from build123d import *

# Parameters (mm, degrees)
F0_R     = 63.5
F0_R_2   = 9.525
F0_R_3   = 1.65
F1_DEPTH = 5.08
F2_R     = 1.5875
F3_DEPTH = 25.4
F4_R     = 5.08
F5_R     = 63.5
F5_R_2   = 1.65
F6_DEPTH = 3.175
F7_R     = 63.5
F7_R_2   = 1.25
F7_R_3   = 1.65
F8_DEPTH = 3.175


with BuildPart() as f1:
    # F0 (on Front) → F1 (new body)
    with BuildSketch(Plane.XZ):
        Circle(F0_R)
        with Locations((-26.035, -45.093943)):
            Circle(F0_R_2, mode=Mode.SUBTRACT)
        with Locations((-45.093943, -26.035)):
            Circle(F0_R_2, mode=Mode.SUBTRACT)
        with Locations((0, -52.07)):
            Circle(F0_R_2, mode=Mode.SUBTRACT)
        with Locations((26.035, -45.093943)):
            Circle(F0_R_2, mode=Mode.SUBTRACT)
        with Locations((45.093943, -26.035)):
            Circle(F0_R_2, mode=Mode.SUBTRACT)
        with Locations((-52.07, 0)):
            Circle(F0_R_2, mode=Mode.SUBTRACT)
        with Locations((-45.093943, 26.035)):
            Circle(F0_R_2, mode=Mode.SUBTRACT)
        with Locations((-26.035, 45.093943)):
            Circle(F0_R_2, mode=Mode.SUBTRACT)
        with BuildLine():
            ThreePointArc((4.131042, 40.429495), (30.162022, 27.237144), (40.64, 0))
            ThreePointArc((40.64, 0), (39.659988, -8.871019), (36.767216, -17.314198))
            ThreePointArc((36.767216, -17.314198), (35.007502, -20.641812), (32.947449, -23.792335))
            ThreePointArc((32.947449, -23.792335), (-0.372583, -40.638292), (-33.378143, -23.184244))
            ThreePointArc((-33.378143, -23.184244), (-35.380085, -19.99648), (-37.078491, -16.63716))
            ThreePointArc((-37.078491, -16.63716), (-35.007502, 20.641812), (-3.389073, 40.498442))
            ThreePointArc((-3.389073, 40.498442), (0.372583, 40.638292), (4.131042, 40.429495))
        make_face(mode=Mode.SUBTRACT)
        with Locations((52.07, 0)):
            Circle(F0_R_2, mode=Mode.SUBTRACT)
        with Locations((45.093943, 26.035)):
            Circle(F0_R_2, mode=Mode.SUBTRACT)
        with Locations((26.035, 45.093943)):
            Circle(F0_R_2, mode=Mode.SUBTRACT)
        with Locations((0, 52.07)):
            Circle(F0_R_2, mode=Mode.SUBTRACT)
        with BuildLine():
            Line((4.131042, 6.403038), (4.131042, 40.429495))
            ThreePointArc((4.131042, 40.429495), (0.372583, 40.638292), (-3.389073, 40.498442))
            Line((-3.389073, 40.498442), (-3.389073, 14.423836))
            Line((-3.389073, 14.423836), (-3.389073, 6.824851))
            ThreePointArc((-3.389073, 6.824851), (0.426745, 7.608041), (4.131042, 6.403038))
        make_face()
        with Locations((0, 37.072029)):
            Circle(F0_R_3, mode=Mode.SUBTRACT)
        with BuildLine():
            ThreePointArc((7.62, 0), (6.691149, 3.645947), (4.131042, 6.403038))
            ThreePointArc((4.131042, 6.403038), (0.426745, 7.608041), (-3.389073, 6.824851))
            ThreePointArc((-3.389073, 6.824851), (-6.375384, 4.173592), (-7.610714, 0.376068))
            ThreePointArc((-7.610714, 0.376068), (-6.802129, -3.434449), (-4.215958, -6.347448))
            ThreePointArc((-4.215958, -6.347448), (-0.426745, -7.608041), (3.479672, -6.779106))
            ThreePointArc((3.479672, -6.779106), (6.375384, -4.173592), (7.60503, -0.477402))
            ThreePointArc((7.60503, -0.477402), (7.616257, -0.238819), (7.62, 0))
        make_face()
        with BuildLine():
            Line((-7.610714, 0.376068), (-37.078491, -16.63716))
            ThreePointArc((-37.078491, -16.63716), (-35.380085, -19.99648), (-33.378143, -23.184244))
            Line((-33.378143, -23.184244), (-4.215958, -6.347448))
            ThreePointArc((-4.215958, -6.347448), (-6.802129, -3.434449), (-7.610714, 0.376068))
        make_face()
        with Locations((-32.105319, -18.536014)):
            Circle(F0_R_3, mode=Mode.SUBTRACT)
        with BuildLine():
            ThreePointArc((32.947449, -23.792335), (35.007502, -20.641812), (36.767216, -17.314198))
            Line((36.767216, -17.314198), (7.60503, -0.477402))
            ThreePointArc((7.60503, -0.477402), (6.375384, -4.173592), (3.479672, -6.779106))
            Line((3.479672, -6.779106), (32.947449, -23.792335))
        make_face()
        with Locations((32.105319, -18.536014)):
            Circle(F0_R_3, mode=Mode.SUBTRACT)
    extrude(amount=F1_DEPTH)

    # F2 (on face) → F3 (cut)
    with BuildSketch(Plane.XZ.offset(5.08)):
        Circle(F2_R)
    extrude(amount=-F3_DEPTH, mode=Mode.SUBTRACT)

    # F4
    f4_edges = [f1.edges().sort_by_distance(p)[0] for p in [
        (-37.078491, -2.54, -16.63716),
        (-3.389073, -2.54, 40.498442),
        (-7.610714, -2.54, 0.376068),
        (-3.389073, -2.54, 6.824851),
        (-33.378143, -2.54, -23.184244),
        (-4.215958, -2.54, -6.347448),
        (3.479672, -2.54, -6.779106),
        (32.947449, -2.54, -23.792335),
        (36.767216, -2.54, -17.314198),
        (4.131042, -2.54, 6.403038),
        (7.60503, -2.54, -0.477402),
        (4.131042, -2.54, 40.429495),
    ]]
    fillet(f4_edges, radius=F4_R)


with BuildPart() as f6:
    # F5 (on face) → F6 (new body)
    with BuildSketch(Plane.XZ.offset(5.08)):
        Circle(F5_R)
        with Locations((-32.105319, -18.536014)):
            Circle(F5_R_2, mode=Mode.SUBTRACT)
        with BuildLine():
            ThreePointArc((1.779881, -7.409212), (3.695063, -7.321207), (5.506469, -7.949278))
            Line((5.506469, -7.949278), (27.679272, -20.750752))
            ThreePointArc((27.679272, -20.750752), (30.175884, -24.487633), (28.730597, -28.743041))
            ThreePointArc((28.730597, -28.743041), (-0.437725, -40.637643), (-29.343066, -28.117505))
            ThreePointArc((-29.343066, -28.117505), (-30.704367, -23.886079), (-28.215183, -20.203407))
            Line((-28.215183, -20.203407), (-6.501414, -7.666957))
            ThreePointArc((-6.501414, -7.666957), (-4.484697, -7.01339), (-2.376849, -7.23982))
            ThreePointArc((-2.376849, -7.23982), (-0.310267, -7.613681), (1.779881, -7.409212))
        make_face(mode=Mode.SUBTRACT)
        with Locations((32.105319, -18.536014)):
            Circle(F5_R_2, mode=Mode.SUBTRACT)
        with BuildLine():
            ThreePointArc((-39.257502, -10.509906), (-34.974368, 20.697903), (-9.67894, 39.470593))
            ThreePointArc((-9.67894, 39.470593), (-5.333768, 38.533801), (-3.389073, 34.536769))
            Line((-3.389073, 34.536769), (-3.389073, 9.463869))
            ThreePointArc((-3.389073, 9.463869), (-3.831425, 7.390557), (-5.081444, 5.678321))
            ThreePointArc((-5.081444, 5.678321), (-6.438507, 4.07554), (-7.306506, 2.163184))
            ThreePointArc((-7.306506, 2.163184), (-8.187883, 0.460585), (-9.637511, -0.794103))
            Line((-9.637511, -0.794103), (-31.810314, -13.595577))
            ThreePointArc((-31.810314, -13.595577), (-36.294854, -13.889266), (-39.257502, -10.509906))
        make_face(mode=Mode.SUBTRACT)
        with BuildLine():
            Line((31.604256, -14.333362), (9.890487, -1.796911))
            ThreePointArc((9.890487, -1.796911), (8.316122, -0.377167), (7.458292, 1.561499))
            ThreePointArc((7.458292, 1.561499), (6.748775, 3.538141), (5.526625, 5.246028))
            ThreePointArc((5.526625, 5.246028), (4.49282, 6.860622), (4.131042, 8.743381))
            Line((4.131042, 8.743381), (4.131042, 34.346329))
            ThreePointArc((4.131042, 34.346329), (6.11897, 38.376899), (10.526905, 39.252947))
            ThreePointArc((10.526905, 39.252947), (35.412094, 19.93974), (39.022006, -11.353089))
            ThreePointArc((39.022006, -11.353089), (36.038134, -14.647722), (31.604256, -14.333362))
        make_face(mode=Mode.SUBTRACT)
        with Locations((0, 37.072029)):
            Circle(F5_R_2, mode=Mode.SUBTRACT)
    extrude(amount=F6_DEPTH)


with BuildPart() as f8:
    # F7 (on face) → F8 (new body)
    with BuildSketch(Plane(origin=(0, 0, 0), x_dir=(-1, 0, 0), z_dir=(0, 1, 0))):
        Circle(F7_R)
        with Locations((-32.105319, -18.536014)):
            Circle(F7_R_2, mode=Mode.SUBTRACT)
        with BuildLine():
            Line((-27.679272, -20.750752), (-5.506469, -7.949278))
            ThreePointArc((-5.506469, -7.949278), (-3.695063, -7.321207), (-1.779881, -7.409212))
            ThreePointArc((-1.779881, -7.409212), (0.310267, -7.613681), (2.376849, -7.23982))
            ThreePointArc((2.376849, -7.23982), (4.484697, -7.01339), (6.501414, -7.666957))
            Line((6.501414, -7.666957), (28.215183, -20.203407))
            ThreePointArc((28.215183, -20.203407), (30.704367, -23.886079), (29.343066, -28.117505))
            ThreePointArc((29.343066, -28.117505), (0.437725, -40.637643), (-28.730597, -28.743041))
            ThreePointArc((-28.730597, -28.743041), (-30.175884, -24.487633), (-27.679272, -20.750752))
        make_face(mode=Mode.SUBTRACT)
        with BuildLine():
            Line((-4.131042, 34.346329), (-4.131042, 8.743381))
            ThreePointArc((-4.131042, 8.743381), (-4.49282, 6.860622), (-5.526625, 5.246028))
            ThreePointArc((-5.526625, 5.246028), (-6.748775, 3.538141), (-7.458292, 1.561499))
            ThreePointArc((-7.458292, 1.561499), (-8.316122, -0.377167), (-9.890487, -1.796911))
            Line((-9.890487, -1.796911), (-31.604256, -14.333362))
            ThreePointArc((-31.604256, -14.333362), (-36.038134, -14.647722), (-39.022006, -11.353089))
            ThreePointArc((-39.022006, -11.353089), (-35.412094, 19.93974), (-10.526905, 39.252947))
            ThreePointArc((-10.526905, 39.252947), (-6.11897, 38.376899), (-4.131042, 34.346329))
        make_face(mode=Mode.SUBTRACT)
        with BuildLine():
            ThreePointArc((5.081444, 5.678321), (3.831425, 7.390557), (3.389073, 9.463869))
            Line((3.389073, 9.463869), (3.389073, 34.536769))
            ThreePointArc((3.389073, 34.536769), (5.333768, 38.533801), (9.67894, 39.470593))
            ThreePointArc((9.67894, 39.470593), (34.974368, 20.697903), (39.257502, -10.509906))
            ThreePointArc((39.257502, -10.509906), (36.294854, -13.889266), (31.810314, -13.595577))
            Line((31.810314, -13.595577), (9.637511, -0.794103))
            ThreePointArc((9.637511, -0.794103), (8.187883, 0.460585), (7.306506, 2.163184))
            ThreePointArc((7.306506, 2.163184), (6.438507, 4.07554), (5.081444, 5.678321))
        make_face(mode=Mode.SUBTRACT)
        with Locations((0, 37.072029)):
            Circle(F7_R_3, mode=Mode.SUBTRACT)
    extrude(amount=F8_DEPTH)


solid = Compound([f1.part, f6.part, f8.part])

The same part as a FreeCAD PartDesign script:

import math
import FreeCAD as App
import Part
import Sketcher

V = App.Vector
Q = App.Units.Quantity


def edges_at(feature, points):
    """Names of the edges that pass closest to the given points."""
    edges = feature.Shape.Edges
    near = lambda p: min(range(len(edges)), key=lambda i: edges[i].distToShape(Part.Vertex(*p))[0])
    return sorted({f"Edge{near(p) + 1}" for p in points})

doc = App.newDocument("Part")
body = doc.addObject("PartDesign::Body", "Body")

# Sketch on XZ plane
sketch1 = body.newObject("Sketcher::SketchObject", "Sketch")
sketch1.AttachmentSupport = (doc.getObject("XZ_Plane"), [""])
sketch1.MapMode = "FlatFace"
sketch1.addGeometry([
    Part.Circle(V(0, 0, 0), V(0, 0, 1), 63.5),  # 0
    Part.Circle(V(-26.04, -45.09, 0), V(0, 0, 1), 9.53),  # 1
    Part.Circle(V(-45.09, -26.04, 0), V(0, 0, 1), 9.53),  # 2
    Part.Circle(V(-32.11, -18.54, 0), V(0, 0, 1), 1.65),  # 3
    Part.ArcOfCircle(Part.Circle(V(0, 0, 0), V(0, 0, 1), 7.62), math.radians(-124), math.radians(-63)),  # 4
    Part.LineSegment(V(3.48, -6.78, 0), V(32.95, -23.79, 0)),  # 5
    Part.ArcOfCircle(Part.Circle(V(0, 0, 0), V(0, 0, 1), 40.64), math.radians(-145), math.radians(-36)),  # 6
    Part.LineSegment(V(-33.38, -23.18, 0), V(-4.22, -6.35, 0)),  # 7
    Part.Circle(V(0, -52.07, 0), V(0, 0, 1), 9.53),  # 8
    Part.Circle(V(26.04, -45.09, 0), V(0, 0, 1), 9.53),  # 9
    Part.Circle(V(45.09, -26.04, 0), V(0, 0, 1), 9.53),  # 10
    Part.Circle(V(32.11, -18.54, 0), V(0, 0, 1), 1.65),  # 11
    Part.Circle(V(-52.07, 0, 0), V(0, 0, 1), 9.53),  # 12
    Part.Circle(V(-45.09, 26.04, 0), V(0, 0, 1), 9.53),  # 13
    Part.LineSegment(V(-7.61, 0.38, 0), V(-37.08, -16.64, 0)),  # 14
    Part.ArcOfCircle(Part.Circle(V(0, 0, 0), V(0, 0, 1), 40.64), math.radians(95), math.radians(204)),  # 15
    Part.LineSegment(V(-3.39, 40.5, 0), V(-3.39, 6.82, 0)),  # 16
    Part.ArcOfCircle(Part.Circle(V(0, 0, 0), V(0, 0, 1), 7.62), math.radians(116), math.radians(177)),  # 17
    Part.Circle(V(-26.04, 45.09, 0), V(0, 0, 1), 9.53),  # 18
    Part.ArcOfCircle(Part.Circle(V(0, 0, 0), V(0, 0, 1), 7.62), math.radians(0), math.radians(57)),  # 19
    Part.LineSegment(V(4.13, 6.4, 0), V(4.13, 40.43, 0)),  # 20
    Part.ArcOfCircle(Part.Circle(V(0, 0, 0), V(0, 0, 1), 40.64), math.radians(0), math.radians(84)),  # 21
    Part.ArcOfCircle(Part.Circle(V(0, 0, 0), V(0, 0, 1), 40.64), math.radians(-25), math.radians(0)),  # 22
    Part.LineSegment(V(36.77, -17.31, 0), V(7.61, -0.48, 0)),  # 23
    Part.ArcOfCircle(Part.Circle(V(0, 0, 0), V(0, 0, 1), 7.62), math.radians(-3.59), math.radians(0)),  # 24
    Part.Circle(V(52.07, 0, 0), V(0, 0, 1), 9.53),  # 25
    Part.Circle(V(45.09, 26.04, 0), V(0, 0, 1), 9.53),  # 26
    Part.Circle(V(0, 37.07, 0), V(0, 0, 1), 1.65),  # 27
    Part.Circle(V(26.04, 45.09, 0), V(0, 0, 1), 9.53),  # 28
    Part.Circle(V(0, 52.07, 0), V(0, 0, 1), 9.53),  # 29
], False)
sketch1.addConstraint([
    Sketcher.Constraint("Coincident", 4, 2, 5, 1),
    Sketcher.Constraint("Coincident", 5, 2, 6, 2),
    Sketcher.Constraint("Coincident", 6, 1, 7, 1),
    Sketcher.Constraint("Coincident", 7, 2, 4, 1),
    Sketcher.Constraint("Coincident", 14, 2, 15, 2),
    Sketcher.Constraint("Coincident", 15, 1, 16, 1),
    Sketcher.Constraint("Coincident", 16, 2, 17, 1),
    Sketcher.Constraint("Coincident", 17, 2, 14, 1),
    Sketcher.Constraint("Coincident", 19, 2, 20, 1),
    Sketcher.Constraint("Coincident", 20, 2, 21, 2),
    Sketcher.Constraint("Tangent", 21, 1, 22, 2),
    Sketcher.Constraint("Coincident", 22, 1, 23, 1),
    Sketcher.Constraint("Coincident", 23, 2, 24, 1),
    Sketcher.Constraint("Coincident", 24, 2, 19, 1),
    Sketcher.Constraint("Vertical", 16),
    Sketcher.Constraint("Vertical", 20),
    Sketcher.Constraint("Coincident", 0, 3, -1, 1),
    Sketcher.Constraint("Coincident", 4, 3, -1, 1),
    Sketcher.Constraint("Coincident", 6, 3, -1, 1),
    Sketcher.Constraint("Coincident", 15, 3, -1, 1),
    Sketcher.Constraint("Coincident", 17, 3, -1, 1),
    Sketcher.Constraint("Coincident", 19, 3, -1, 1),
    Sketcher.Constraint("Coincident", 21, 3, -1, 1),
    Sketcher.Constraint("Equal", 1, 2),
    Sketcher.Constraint("Equal", 2, 8),
    Sketcher.Constraint("Equal", 8, 9),
    Sketcher.Constraint("Equal", 9, 10),
    Sketcher.Constraint("Equal", 3, 11),
    Sketcher.Constraint("Equal", 10, 12),
    Sketcher.Constraint("Equal", 12, 13),
    Sketcher.Constraint("Equal", 6, 15),
    Sketcher.Constraint("Equal", 13, 18),
    Sketcher.Constraint("Equal", 4, 19),
    Sketcher.Constraint("Equal", 15, 21),
    Sketcher.Constraint("Equal", 18, 25),
    Sketcher.Constraint("Equal", 25, 26),
    Sketcher.Constraint("Equal", 11, 27),
    Sketcher.Constraint("Equal", 26, 28),
    Sketcher.Constraint("Equal", 28, 29),
    Sketcher.Constraint("Symmetric", 10, 3, 13, 3, -1, 1),
    Sketcher.Constraint("Symmetric", 9, 3, 18, 3, -1, 1),
    Sketcher.Constraint("Symmetric", 12, 3, 25, 3, -1, 1),
    Sketcher.Constraint("Symmetric", 2, 3, 26, 3, -1, 1),
    Sketcher.Constraint("Symmetric", 1, 3, 28, 3, -1, 1),
    Sketcher.Constraint("Symmetric", 8, 3, 29, 3, -1, 1),
    Sketcher.Constraint("Symmetric", 1, 3, 9, 3, -2),
    Sketcher.Constraint("Symmetric", 2, 3, 10, 3, -2),
    Sketcher.Constraint("Symmetric", 3, 3, 11, 3, -2),
    Sketcher.Constraint("PointOnObject", 8, 3, -2),
    Sketcher.Constraint("PointOnObject", 12, 3, -1),
    Sketcher.Constraint("PointOnObject", 27, 3, -2),
    Sketcher.Constraint("PointOnObject", 21, 1, -1),
    Sketcher.Constraint("PointOnObject", 24, 2, -1),
    Sketcher.Constraint("Parallel", 7, 14),
    Sketcher.Constraint("Parallel", 5, 23),
    Sketcher.Constraint("Equal", 5, 14),
    Sketcher.Constraint("Equal", 7, 23),
    Sketcher.Constraint("Diameter", 0, Q("5 in")),
    Sketcher.Constraint("Radius", 4, Q("0.3 in")),
    Sketcher.Constraint("Radius", 6, Q("1.6 in")),
    Sketcher.Constraint("Radius", 17, Q("0.3000002 in")),
    Sketcher.Constraint("Diameter", 1, Q("0.75 in")),
    Sketcher.Constraint("Angle", 5, Q("-30 deg")),
    Sketcher.Constraint("Angle", 7, Q("30.000001 deg")),
    Sketcher.Constraint("Diameter", 3, 3.3),
    Sketcher.Constraint("DistanceY", 8, 3, -1, 1, Q("2.05 in")),
    Sketcher.Constraint("DistanceX", 12, 3, -1, 1, Q("2.05 in")),
    Sketcher.Constraint("DistanceX", 1, 3, 9, 3, Q("2.05 in")),
    Sketcher.Constraint("DistanceY", 2, 3, 13, 3, Q("2.05 in")),
    Sketcher.Constraint("DistanceX", 6, 1, -1, 1, Q("1.3141001 in")),
    Sketcher.Constraint("Radius", 22, 40.639993),
    Sketcher.Constraint("Radius", 24, 7.618903),
    Sketcher.Constraint("DistanceY", 16, 2, 16, 1, 33.673591),
    Sketcher.Constraint("DistanceX", 2, 3, 6, 1, 11.7158),
    Sketcher.Constraint("DistanceY", 1, 3, 6, 1, 21.909699),
    Sketcher.Constraint("DistanceY", 23, 2, 22, 3, 0.4774),
    Sketcher.Constraint("DistanceY", 20, 1, 20, 2, 34.026457),
    Sketcher.Constraint("DistanceX", 3, 3, -1, 1, 32.105319),
    Sketcher.Constraint("DistanceY", -1, 1, 27, 3, 37.072029),
    Sketcher.Constraint("DistanceX", -1, 1, 4, 2, 3.479672),
    Sketcher.Constraint("DistanceY", 1, 3, 3, 3, 26.557929),
])
pad1 = body.newObject("PartDesign::Pad", "Pad")
pad1.Profile = sketch1
pad1.Length = Q("0.2 in")

# Sketch on XZ plane
sketch2 = body.newObject("Sketcher::SketchObject", "Sketch001")
sketch2.AttachmentSupport = (doc.getObject("XZ_Plane"), [""])
sketch2.MapMode = "FlatFace"
sketch2.AttachmentOffset = App.Placement(V(0, 0, 0.2 * 25.4), App.Rotation())
sketch2.addGeometry(Part.Circle(V(0, 0, 0), V(0, 0, 1), 1.6), False)
sketch2.addConstraint([
    Sketcher.Constraint("Coincident", 0, 3, -1, 1),
    Sketcher.Constraint("Diameter", 0, Q("0.125 in")),
])
pocket1 = body.newObject("PartDesign::Pocket", "Pocket")
pocket1.Profile = sketch2
pocket1.Length = Q("1 in")
doc.recompute()

fillet = body.newObject("PartDesign::Fillet", "Fillet")
fillet.Base = (pocket1, edges_at(pocket1, [
    (-37.078, -2.54, -16.637),
    (-3.389, -2.54, 40.498),
    (-7.611, -2.54, 0.376),
    (-3.389, -2.54, 6.825),
    (-33.378, -2.54, -23.184),
    (-4.216, -2.54, -6.347),
    (3.48, -2.54, -6.779),
    (32.947, -2.54, -23.792),
    (36.767, -2.54, -17.314),
    (4.131, -2.54, 6.403),
    (7.605, -2.54, -0.477),
    (4.131, -2.54, 40.429),
]))
fillet.Radius = Q("0.2 in")
body2 = doc.addObject("PartDesign::Body", "Body001")

# Sketch on XZ plane
sketch3 = body2.newObject("Sketcher::SketchObject", "Sketch002")
sketch3.AttachmentSupport = (doc.getObject("XZ_Plane001"), [""])
sketch3.MapMode = "FlatFace"
sketch3.AttachmentOffset = App.Placement(V(0, 0, 0.2 * 25.4), App.Rotation())
sketch3.addGeometry([
    Part.Circle(V(0, 0, 0), V(0, 0, 1), 63.5),  # 0
    Part.ArcOfCircle(Part.Circle(V(0, 0, 0), V(0, 0, 1), 7.6), math.radians(-108), math.radians(-76)),  # 1
    Part.ArcOfCircle(Part.Circle(V(3, -12.3, 0), V(0, 0, 1), 5.1), math.radians(60), math.radians(104)),  # 2
    Part.LineSegment(V(5.5, -7.9, 0), V(27.7, -20.8, 0)),  # 3
    Part.ArcOfCircle(Part.Circle(V(25.1, -25.2, 0), V(0, 0, 1), 5.1), math.radians(-45), math.radians(60)),  # 4
    Part.ArcOfCircle(Part.Circle(V(0, 0, 0), V(0, 0, 1), 40.6), math.radians(-136), math.radians(-45)),  # 5
    Part.ArcOfCircle(Part.Circle(V(-25.7, -24.6, 0), V(0, 0, 1), 5.1), math.radians(120), math.radians(224)),  # 6
    Part.LineSegment(V(-28.2, -20.2, 0), V(-6.5, -7.7, 0)),  # 7
    Part.ArcOfCircle(Part.Circle(V(-4, -12.1, 0), V(0, 0, 1), 5.1), math.radians(72), math.radians(120)),  # 8
    Part.Circle(V(-32.1, -18.5, 0), V(0, 0, 1), 1.6),  # 9
    Part.Circle(V(32.1, -18.5, 0), V(0, 0, 1), 1.6),  # 10
    Part.ArcOfCircle(Part.Circle(V(-34.4, -9.2, 0), V(0, 0, 1), 5.1), math.radians(-165), math.radians(-60)),  # 11
    Part.ArcOfCircle(Part.Circle(V(0, 0, 0), V(0, 0, 1), 40.6), math.radians(104), math.radians(195)),  # 12
    Part.ArcOfCircle(Part.Circle(V(-8.5, 34.5, 0), V(0, 0, 1), 5.1), math.radians(0), math.radians(104)),  # 13
    Part.LineSegment(V(-3.4, 34.5, 0), V(-3.4, 9.5, 0)),  # 14
    Part.ArcOfCircle(Part.Circle(V(-8.5, 9.5, 0), V(0, 0, 1), 5.1), math.radians(-48), math.radians(0)),  # 15
    Part.ArcOfCircle(Part.Circle(V(0, 0, 0), V(0, 0, 1), 7.6), math.radians(132), math.radians(164)),  # 16
    Part.ArcOfCircle(Part.Circle(V(-12.2, 3.6, 0), V(0, 0, 1), 5.1), math.radians(-60), math.radians(-16)),  # 17
    Part.LineSegment(V(-9.6, -0.8, 0), V(-31.8, -13.6, 0)),  # 18
    Part.Circle(V(0, 37.1, 0), V(0, 0, 1), 1.6),  # 19
    Part.ArcOfCircle(Part.Circle(V(34.1, -9.9, 0), V(0, 0, 1), 5.1), math.radians(-120), math.radians(-16)),  # 20
    Part.LineSegment(V(31.6, -14.3, 0), V(9.9, -1.8, 0)),  # 21
    Part.ArcOfCircle(Part.Circle(V(12.4, 2.6, 0), V(0, 0, 1), 5.1), math.radians(-168), math.radians(-120)),  # 22
    Part.ArcOfCircle(Part.Circle(V(0, 0, 0), V(0, 0, 1), 7.6), math.radians(12), math.radians(44)),  # 23
    Part.ArcOfCircle(Part.Circle(V(9.2, 8.7, 0), V(0, 0, 1), 5.1), math.radians(-180), math.radians(-136)),  # 24
    Part.LineSegment(V(4.1, 8.7, 0), V(4.1, 34.3, 0)),  # 25
    Part.ArcOfCircle(Part.Circle(V(9.2, 34.3, 0), V(0, 0, 1), 5.1), math.radians(75), math.radians(180)),  # 26
    Part.ArcOfCircle(Part.Circle(V(0, 0, 0), V(0, 0, 1), 40.6), math.radians(-16), math.radians(75)),  # 27
], False)
sketch3.addConstraint([
    Sketcher.Constraint("Tangent", 1, 2, 2, 2),
    Sketcher.Constraint("Tangent", 2, 1, 3, 1),
    Sketcher.Constraint("Tangent", 3, 2, 4, 2),
    Sketcher.Constraint("Tangent", 4, 1, 5, 2),
    Sketcher.Constraint("Tangent", 5, 1, 6, 2),
    Sketcher.Constraint("Tangent", 6, 1, 7, 1),
    Sketcher.Constraint("Tangent", 7, 2, 8, 2),
    Sketcher.Constraint("Tangent", 8, 1, 1, 1),
    Sketcher.Constraint("Tangent", 11, 1, 12, 2),
    Sketcher.Constraint("Tangent", 12, 1, 13, 2),
    Sketcher.Constraint("Tangent", 13, 1, 14, 1),
    Sketcher.Constraint("Tangent", 14, 2, 15, 2),
    Sketcher.Constraint("Tangent", 15, 1, 16, 1),
    Sketcher.Constraint("Tangent", 16, 2, 17, 2),
    Sketcher.Constraint("Tangent", 17, 1, 18, 1),
    Sketcher.Constraint("Tangent", 18, 2, 11, 2),
    Sketcher.Constraint("Tangent", 20, 1, 21, 1),
    Sketcher.Constraint("Tangent", 21, 2, 22, 2),
    Sketcher.Constraint("Tangent", 22, 1, 23, 1),
    Sketcher.Constraint("Tangent", 23, 2, 24, 2),
    Sketcher.Constraint("Tangent", 24, 1, 25, 1),
    Sketcher.Constraint("Tangent", 25, 2, 26, 2),
    Sketcher.Constraint("Tangent", 26, 1, 27, 2),
    Sketcher.Constraint("Tangent", 27, 1, 20, 2),
    Sketcher.Constraint("Vertical", 14),
    Sketcher.Constraint("Vertical", 25),
    Sketcher.Constraint("Coincident", 0, 3, -1, 1),
    Sketcher.Constraint("Coincident", 1, 3, -1, 1),
    Sketcher.Constraint("Coincident", 5, 3, -1, 1),
    Sketcher.Constraint("Coincident", 12, 3, -1, 1),
    Sketcher.Constraint("Coincident", 16, 3, -1, 1),
    Sketcher.Constraint("Coincident", 27, 3, -1, 1),
    Sketcher.Constraint("Equal", 4, 6),
    Sketcher.Constraint("Equal", 9, 10),
    Sketcher.Constraint("Equal", 6, 11),
    Sketcher.Constraint("Equal", 5, 12),
    Sketcher.Constraint("Equal", 11, 13),
    Sketcher.Constraint("Equal", 13, 15),
    Sketcher.Constraint("Equal", 15, 17),
    Sketcher.Constraint("Equal", 10, 19),
    Sketcher.Constraint("Equal", 17, 20),
    Sketcher.Constraint("Equal", 13, 22),
    Sketcher.Constraint("Equal", 8, 24),
    Sketcher.Constraint("Equal", 22, 26),
    Sketcher.Constraint("Equal", 12, 27),
    Sketcher.Constraint("Symmetric", 9, 3, 10, 3, -2),
    Sketcher.Constraint("PointOnObject", 19, 3, -2),
    Sketcher.Constraint("Parallel", 7, 18),
    Sketcher.Constraint("Parallel", 3, 21),
    Sketcher.Constraint("Equal", 3, 18),
    Sketcher.Constraint("Equal", 7, 21),
    Sketcher.Constraint("Diameter", 0, Q("5 in")),
    Sketcher.Constraint("Radius", 1, Q("0.2999999 in")),
    Sketcher.Constraint("Radius", 2, Q("0.1999999 in")),
    Sketcher.Constraint("Radius", 4, Q("0.2 in")),
    Sketcher.Constraint("Radius", 5, Q("1.6 in")),
    Sketcher.Constraint("Radius", 8, Q("0.2000002 in")),
    Sketcher.Constraint("Radius", 16, Q("0.3 in")),
    Sketcher.Constraint("Angle", 3, Q("-30 deg")),
    Sketcher.Constraint("Angle", 7, Q("29.999999 deg")),
    Sketcher.Constraint("Diameter", 9, 3.3),
    Sketcher.Constraint("DistanceY", 8, 3, 11, 3, Q("0.1130001 in")),
    Sketcher.Constraint("DistanceY", 14, 2, 14, 1, 25.0729),
    Sketcher.Constraint("Radius", 23, 7.619984),
    Sketcher.Constraint("DistanceX", 12, 1, 26, 3, Q("0.7437 in")),
    Sketcher.Constraint("Distance", 7, 25.072901),
    Sketcher.Constraint("DistanceY", -1, 1, 22, 1, 1.561499),
    Sketcher.Constraint("DistanceY", 1, 3, 22, 3, 2.602501),
    Sketcher.Constraint("DistanceY", 26, 3, 19, 3, 2.725699),
    Sketcher.Constraint("DistanceX", 9, 3, -1, 1, 32.105319),
    Sketcher.Constraint("DistanceY", 9, 3, 2, 3, 6.18733),
])
pad2 = body2.newObject("PartDesign::Pad", "Pad001")
pad2.Profile = sketch3
pad2.Length = Q("0.125 in")
body3 = doc.addObject("PartDesign::Body", "Body002")

# Sketch on XZ plane
sketch4 = body3.newObject("Sketcher::SketchObject", "Sketch003")
sketch4.AttachmentSupport = (doc.getObject("XZ_Plane002"), [""])
sketch4.MapMode = "FlatFace"
sketch4.addGeometry([
    Part.Circle(V(0, 0, 0), V(0, 0, 1), 63.5),  # 0
    Part.Circle(V(32.1, -18.5, 0), V(0, 0, 1), 1.2),  # 1
    Part.ArcOfCircle(Part.Circle(V(25.1, -25.2, 0), V(0, 0, 1), 5.1), math.radians(-45), math.radians(60)),  # 2
    Part.LineSegment(V(27.7, -20.8, 0), V(5.5, -7.9, 0)),  # 3
    Part.ArcOfCircle(Part.Circle(V(3, -12.3, 0), V(0, 0, 1), 5.1), math.radians(60), math.radians(104)),  # 4
    Part.ArcOfCircle(Part.Circle(V(0, 0, 0), V(0, 0, 1), 7.6), math.radians(-108), math.radians(-76)),  # 5
    Part.ArcOfCircle(Part.Circle(V(-4, -12.1, 0), V(0, 0, 1), 5.1), math.radians(72), math.radians(120)),  # 6
    Part.LineSegment(V(-6.5, -7.7, 0), V(-28.2, -20.2, 0)),  # 7
    Part.ArcOfCircle(Part.Circle(V(-25.7, -24.6, 0), V(0, 0, 1), 5.1), math.radians(120), math.radians(224)),  # 8
    Part.ArcOfCircle(Part.Circle(V(0, 0, 0), V(0, 0, 1), 40.6), math.radians(-136), math.radians(-45)),  # 9
    Part.ArcOfCircle(Part.Circle(V(9.2, 34.3, 0), V(0, 0, 1), 5.1), math.radians(75), math.radians(180)),  # 10
    Part.LineSegment(V(4.1, 34.3, 0), V(4.1, 8.7, 0)),  # 11
    Part.ArcOfCircle(Part.Circle(V(9.2, 8.7, 0), V(0, 0, 1), 5.1), math.radians(-180), math.radians(-136)),  # 12
    Part.ArcOfCircle(Part.Circle(V(0, 0, 0), V(0, 0, 1), 7.6), math.radians(12), math.radians(44)),  # 13
    Part.ArcOfCircle(Part.Circle(V(12.4, 2.6, 0), V(0, 0, 1), 5.1), math.radians(-168), math.radians(-120)),  # 14
    Part.LineSegment(V(9.9, -1.8, 0), V(31.6, -14.3, 0)),  # 15
    Part.ArcOfCircle(Part.Circle(V(34.1, -9.9, 0), V(0, 0, 1), 5.1), math.radians(-120), math.radians(-16)),  # 16
    Part.ArcOfCircle(Part.Circle(V(0, 0, 0), V(0, 0, 1), 40.6), math.radians(-16), math.radians(75)),  # 17
    Part.ArcOfCircle(Part.Circle(V(0, 0, 0), V(0, 0, 1), 7.6), math.radians(132), math.radians(164)),  # 18
    Part.ArcOfCircle(Part.Circle(V(-8.5, 9.5, 0), V(0, 0, 1), 5.1), math.radians(-48), math.radians(0)),  # 19
    Part.LineSegment(V(-3.4, 9.5, 0), V(-3.4, 34.5, 0)),  # 20
    Part.ArcOfCircle(Part.Circle(V(-8.5, 34.5, 0), V(0, 0, 1), 5.1), math.radians(0), math.radians(104)),  # 21
    Part.ArcOfCircle(Part.Circle(V(0, 0, 0), V(0, 0, 1), 40.6), math.radians(104), math.radians(195)),  # 22
    Part.ArcOfCircle(Part.Circle(V(-34.4, -9.2, 0), V(0, 0, 1), 5.1), math.radians(-165), math.radians(-60)),  # 23
    Part.LineSegment(V(-31.8, -13.6, 0), V(-9.6, -0.8, 0)),  # 24
    Part.ArcOfCircle(Part.Circle(V(-12.2, 3.6, 0), V(0, 0, 1), 5.1), math.radians(-60), math.radians(-16)),  # 25
    Part.Circle(V(0, 37.1, 0), V(0, 0, 1), 1.6),  # 26
], False)
sketch4.addConstraint([
    Sketcher.Constraint("Tangent", 2, 2, 3, 1),
    Sketcher.Constraint("Tangent", 3, 2, 4, 1),
    Sketcher.Constraint("Tangent", 4, 2, 5, 2),
    Sketcher.Constraint("Tangent", 5, 1, 6, 1),
    Sketcher.Constraint("Tangent", 6, 2, 7, 1),
    Sketcher.Constraint("Tangent", 7, 2, 8, 1),
    Sketcher.Constraint("Tangent", 8, 2, 9, 1),
    Sketcher.Constraint("Tangent", 9, 2, 2, 1),
    Sketcher.Constraint("Tangent", 10, 2, 11, 1),
    Sketcher.Constraint("Tangent", 11, 2, 12, 1),
    Sketcher.Constraint("Tangent", 12, 2, 13, 2),
    Sketcher.Constraint("Tangent", 13, 1, 14, 1),
    Sketcher.Constraint("Tangent", 14, 2, 15, 1),
    Sketcher.Constraint("Tangent", 15, 2, 16, 1),
    Sketcher.Constraint("Tangent", 16, 2, 17, 1),
    Sketcher.Constraint("Tangent", 17, 2, 10, 1),
    Sketcher.Constraint("Tangent", 18, 1, 19, 1),
    Sketcher.Constraint("Tangent", 19, 2, 20, 1),
    Sketcher.Constraint("Tangent", 20, 2, 21, 1),
    Sketcher.Constraint("Tangent", 21, 2, 22, 1),
    Sketcher.Constraint("Tangent", 22, 2, 23, 1),
    Sketcher.Constraint("Tangent", 23, 2, 24, 1),
    Sketcher.Constraint("Tangent", 24, 2, 25, 1),
    Sketcher.Constraint("Tangent", 25, 2, 18, 2),
    Sketcher.Constraint("Vertical", 11),
    Sketcher.Constraint("Vertical", 20),
    Sketcher.Constraint("Coincident", 0, 3, -1, 1),
    Sketcher.Constraint("Coincident", 5, 3, -1, 1),
    Sketcher.Constraint("Coincident", 9, 3, -1, 1),
    Sketcher.Constraint("Coincident", 17, 3, -1, 1),
    Sketcher.Constraint("Coincident", 18, 3, -1, 1),
    Sketcher.Constraint("Coincident", 22, 3, -1, 1),
    Sketcher.Constraint("Equal", 2, 8),
    Sketcher.Constraint("Equal", 8, 10),
    Sketcher.Constraint("Equal", 6, 12),
    Sketcher.Constraint("Equal", 10, 14),
    Sketcher.Constraint("Equal", 10, 16),
    Sketcher.Constraint("Equal", 9, 17),
    Sketcher.Constraint("Equal", 16, 19),
    Sketcher.Constraint("Equal", 19, 21),
    Sketcher.Constraint("Equal", 17, 22),
    Sketcher.Constraint("Equal", 21, 23),
    Sketcher.Constraint("Equal", 23, 25),
    Sketcher.Constraint("PointOnObject", 26, 3, -2),
    Sketcher.Constraint("Parallel", 3, 15),
    Sketcher.Constraint("Parallel", 7, 24),
    Sketcher.Constraint("Equal", 7, 15),
    Sketcher.Constraint("Equal", 3, 24),
    Sketcher.Constraint("Diameter", 0, Q("5 in")),
    Sketcher.Constraint("Radius", 2, Q("0.2 in")),
    Sketcher.Constraint("Radius", 4, Q("0.1999999 in")),
    Sketcher.Constraint("Radius", 5, Q("0.2999999 in")),
    Sketcher.Constraint("Radius", 6, Q("0.2000002 in")),
    Sketcher.Constraint("Radius", 9, Q("1.6 in")),
    Sketcher.Constraint("Radius", 18, Q("0.3 in")),
    Sketcher.Constraint("Angle", 3, Q("150 deg")),
    Sketcher.Constraint("Angle", 7, Q("-150.000001 deg")),
    Sketcher.Constraint("Diameter", 1, 2.5),
    Sketcher.Constraint("Diameter", 26, 3.3),
    Sketcher.Constraint("DistanceY", 6, 3, 23, 3, Q("0.1130001 in")),
    Sketcher.Constraint("DistanceY", 20, 1, 20, 2, 25.0729),
    Sketcher.Constraint("Radius", 13, 7.619984),
    Sketcher.Constraint("DistanceX", 21, 2, 10, 2, Q("0.5437001 in")),
    Sketcher.Constraint("Distance", 7, 25.072901),
    Sketcher.Constraint("DistanceY", -1, 1, 13, 1, 1.561499),
    Sketcher.Constraint("DistanceY", 5, 3, 14, 3, 2.602501),
    Sketcher.Constraint("DistanceY", 10, 3, 26, 3, 2.725699),
    Sketcher.Constraint("DistanceX", -1, 1, 1, 3, 32.105319),
    Sketcher.Constraint("DistanceY", 1, 3, 4, 3, 6.18733),
])
pad3 = body3.newObject("PartDesign::Pad", "Pad002")
pad3.Profile = sketch4
pad3.Length = Q("0.125 in")
pad3.Reversed = True

doc.recompute()
